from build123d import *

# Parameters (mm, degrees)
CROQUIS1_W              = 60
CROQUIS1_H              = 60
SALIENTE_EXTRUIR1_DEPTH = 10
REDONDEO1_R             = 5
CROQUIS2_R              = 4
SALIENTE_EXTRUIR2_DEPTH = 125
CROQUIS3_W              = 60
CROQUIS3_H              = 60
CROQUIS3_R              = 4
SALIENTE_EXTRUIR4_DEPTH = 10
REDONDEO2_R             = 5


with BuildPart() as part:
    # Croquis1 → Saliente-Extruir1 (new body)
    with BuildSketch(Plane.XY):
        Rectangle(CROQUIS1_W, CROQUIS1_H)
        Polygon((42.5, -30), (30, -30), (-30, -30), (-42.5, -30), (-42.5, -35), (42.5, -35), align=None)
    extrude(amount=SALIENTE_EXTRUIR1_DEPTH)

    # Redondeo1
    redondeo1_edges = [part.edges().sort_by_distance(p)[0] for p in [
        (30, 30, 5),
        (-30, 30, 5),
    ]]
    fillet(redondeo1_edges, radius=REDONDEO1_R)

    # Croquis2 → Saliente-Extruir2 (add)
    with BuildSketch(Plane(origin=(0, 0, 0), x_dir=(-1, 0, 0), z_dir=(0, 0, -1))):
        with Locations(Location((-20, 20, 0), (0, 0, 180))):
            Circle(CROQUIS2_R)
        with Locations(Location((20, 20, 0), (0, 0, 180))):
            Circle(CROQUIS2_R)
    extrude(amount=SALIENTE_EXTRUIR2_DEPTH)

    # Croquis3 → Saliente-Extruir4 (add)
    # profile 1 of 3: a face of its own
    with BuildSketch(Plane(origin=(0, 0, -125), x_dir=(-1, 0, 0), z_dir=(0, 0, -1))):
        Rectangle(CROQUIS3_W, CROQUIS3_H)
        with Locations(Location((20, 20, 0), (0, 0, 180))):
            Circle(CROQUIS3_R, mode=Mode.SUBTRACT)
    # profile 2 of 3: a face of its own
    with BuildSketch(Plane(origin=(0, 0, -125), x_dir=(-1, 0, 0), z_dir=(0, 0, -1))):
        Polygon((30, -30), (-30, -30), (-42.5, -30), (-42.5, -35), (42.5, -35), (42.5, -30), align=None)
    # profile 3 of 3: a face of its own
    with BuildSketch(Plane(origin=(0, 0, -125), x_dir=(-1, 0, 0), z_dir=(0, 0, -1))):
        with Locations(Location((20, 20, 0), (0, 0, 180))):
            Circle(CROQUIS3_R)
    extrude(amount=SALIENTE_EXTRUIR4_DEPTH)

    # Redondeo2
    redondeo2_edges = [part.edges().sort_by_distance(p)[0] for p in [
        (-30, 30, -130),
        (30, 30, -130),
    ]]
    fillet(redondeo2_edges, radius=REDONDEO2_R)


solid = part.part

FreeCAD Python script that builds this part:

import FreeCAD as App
import Part
import Sketcher

V = App.Vector
Q = App.Units.Quantity


def edges_at(feature, points):
    """Names of the edges that pass closest to the given points."""
    edges = feature.Shape.Edges
    near = lambda p: min(range(len(edges)), key=lambda i: edges[i].distToShape(Part.Vertex(*p))[0])
    return sorted({f"Edge{near(p) + 1}" for p in points})


def add_polygon(sketch, points):
    """Adds a closed chain of lines whose ends are joined by coincident constraints."""
    first, n = sketch.GeometryCount, len(points)
    for a, b in zip(points, points[1:] + points[:1]):
        sketch.addGeometry(Part.LineSegment(App.Vector(*a, 0), App.Vector(*b, 0)), False)
    for i in range(n):
        sketch.addConstraint(Sketcher.Constraint("Coincident", first + i, 2, first + (i + 1) % n, 1))

doc = App.newDocument("Part")
body = doc.addObject("PartDesign::Body", "Body")

# Sketch on XY plane
sketch1 = doc.addObject("Sketcher::SketchObject", "Sketch")
body.addObject(sketch1)
sketch1.AttachmentSupport = (doc.XY_Plane, [""])
sketch1.MapMode = "FlatFace"
add_polygon(sketch1, [(-30, 30), (-30, -30), (-42, -30), (-42, -35), (42, -35), (42, -30), (30, -30), (30, 30)])  # lines 0-7
sketch1.addConstraint([
    Sketcher.Constraint("Vertical", 0),
    Sketcher.Constraint("Horizontal", 1),
    Sketcher.Constraint("Vertical", 2),
    Sketcher.Constraint("Horizontal", 3),
    Sketcher.Constraint("Vertical", 4),
    Sketcher.Constraint("Horizontal", 5),
    Sketcher.Constraint("Vertical", 6),
    Sketcher.Constraint("Horizontal", 7),
    Sketcher.Constraint("Symmetric", 0, 2, 6, 2, -1, 1),
    Sketcher.Constraint("Symmetric", 1, 2, 4, 2, -2),
    Sketcher.Constraint("Equal", 7, 0),
    Sketcher.Constraint("DistanceX", 3, 1, 3, 2, Q("85 mm")),
    Sketcher.Constraint("DistanceX", 7, 2, 7, 1, Q("60 mm")),
    Sketcher.Constraint("DistanceY", 2, 2, 2, 1, Q("5 mm")),
])
pad1 = doc.addObject("PartDesign::Pad", "Pad")
body.addObject(pad1)
pad1.Profile = sketch1
pad1.Length = 10
doc.recompute()

fillet = doc.addObject("PartDesign::Fillet", "Fillet")
body.addObject(fillet)
fillet.Base = (pad1, edges_at(pad1, [(30, 30, 5), (-30, 30, 5)]))
fillet.Radius = 5

# Sketch on XY plane
sketch2 = doc.addObject("Sketcher::SketchObject", "Sketch001")
body.addObject(sketch2)
sketch2.AttachmentSupport = (doc.XY_Plane, [""])
sketch2.MapMode = "FlatFace"
sketch2.addGeometry([
    Part.Circle(V(20, 20, 0), V(0, 0, 1), 4),
    Part.Circle(V(-20, 20, 0), V(0, 0, 1), 4),
], False)
sketch2.addConstraint([
    Sketcher.Constraint("Equal", 0, 1),
    Sketcher.Constraint("Symmetric", 0, 3, 1, 3, -2),
    Sketcher.Constraint("Diameter", 0, Q("8 mm")),
    Sketcher.Constraint("DistanceX", -1, 1, 0, 3, Q("20 mm")),
    Sketcher.Constraint("DistanceY", -1, 1, 0, 3, Q("20 mm")),
])
pad2 = doc.addObject("PartDesign::Pad", "Pad001")
body.addObject(pad2)
pad2.Profile = sketch2
pad2.Length = 125
pad2.Reversed = True

# Sketch on XY plane
sketch3 = doc.addObject("Sketcher::SketchObject", "Sketch002")
body.addObject(sketch3)
sketch3.AttachmentSupport = (doc.XY_Plane, [""])
sketch3.MapMode = "FlatFace"
sketch3.AttachmentOffset = App.Placement(V(0, 0, -125), App.Rotation())
add_polygon(sketch3, [(30, 30), (30, -30), (42, -30), (42, -35), (-42, -35), (-42, -30), (-30, -30), (-30, 30)])  # lines 0-7
sketch3.addConstraint([
    Sketcher.Constraint("Vertical", 0),
    Sketcher.Constraint("Horizontal", 1),
    Sketcher.Constraint("Vertical", 2),
    Sketcher.Constraint("Horizontal", 3),
    Sketcher.Constraint("Vertical", 4),
    Sketcher.Constraint("Horizontal", 5),
    Sketcher.Constraint("Vertical", 6),
    Sketcher.Constraint("Horizontal", 7),
    Sketcher.Constraint("Symmetric", 0, 2, 6, 2, -1, 1),
    Sketcher.Constraint("Symmetric", 1, 2, 4, 2, -2),
    Sketcher.Constraint("Equal", 7, 0),
    Sketcher.Constraint("DistanceX", 3, 2, 3, 1, Q("85 mm")),
    Sketcher.Constraint("DistanceX", 7, 1, 7, 2, Q("60 mm")),
    Sketcher.Constraint("DistanceY", 2, 2, 2, 1, Q("5 mm")),
])
pad3 = doc.addObject("PartDesign::Pad", "Pad002")
body.addObject(pad3)
pad3.Profile = sketch3
pad3.Length = 10
pad3.Reversed = True
doc.recompute()

fillet2 = doc.addObject("PartDesign::Fillet", "Fillet001")
body.addObject(fillet2)
fillet2.Base = (pad3, edges_at(pad3, [(-30, 30, -130), (30, 30, -130)]))
fillet2.Radius = 5

doc.recompute()
